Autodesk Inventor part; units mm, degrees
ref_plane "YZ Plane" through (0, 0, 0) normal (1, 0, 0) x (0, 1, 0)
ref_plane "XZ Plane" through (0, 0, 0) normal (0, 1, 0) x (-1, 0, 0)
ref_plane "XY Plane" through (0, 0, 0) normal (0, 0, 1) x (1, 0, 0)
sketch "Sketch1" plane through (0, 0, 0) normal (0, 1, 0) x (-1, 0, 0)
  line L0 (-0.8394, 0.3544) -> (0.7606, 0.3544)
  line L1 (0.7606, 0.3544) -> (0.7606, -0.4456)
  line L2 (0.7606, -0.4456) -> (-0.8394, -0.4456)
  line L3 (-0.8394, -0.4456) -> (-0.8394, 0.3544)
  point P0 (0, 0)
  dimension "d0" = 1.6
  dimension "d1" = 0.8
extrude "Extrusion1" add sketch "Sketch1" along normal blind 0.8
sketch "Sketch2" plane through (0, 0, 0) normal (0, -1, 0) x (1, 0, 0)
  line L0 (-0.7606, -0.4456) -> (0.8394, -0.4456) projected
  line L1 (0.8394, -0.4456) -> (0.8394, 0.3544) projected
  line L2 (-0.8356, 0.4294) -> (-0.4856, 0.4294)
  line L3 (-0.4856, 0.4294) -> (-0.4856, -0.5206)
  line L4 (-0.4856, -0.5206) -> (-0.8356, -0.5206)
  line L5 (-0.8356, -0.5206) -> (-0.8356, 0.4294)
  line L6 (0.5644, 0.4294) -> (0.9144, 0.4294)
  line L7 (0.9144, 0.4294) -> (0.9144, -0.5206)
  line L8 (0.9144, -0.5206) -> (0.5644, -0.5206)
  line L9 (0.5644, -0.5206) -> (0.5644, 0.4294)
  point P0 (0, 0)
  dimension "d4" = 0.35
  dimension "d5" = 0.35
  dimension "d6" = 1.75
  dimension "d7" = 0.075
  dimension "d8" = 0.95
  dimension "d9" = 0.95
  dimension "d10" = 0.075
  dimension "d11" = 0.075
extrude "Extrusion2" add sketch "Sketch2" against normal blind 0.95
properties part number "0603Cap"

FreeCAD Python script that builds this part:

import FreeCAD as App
import Part
import Sketcher
Q = App.Units.Quantity


def add_polygon(sketch, points):
    """Adds a closed chain of lines whose ends are joined by coincident constraints."""
    first, n = sketch.GeometryCount, len(points)
    for a, b in zip(points, points[1:] + points[:1]):
        sketch.addGeometry(Part.LineSegment(App.Vector(*a, 0), App.Vector(*b, 0)), False)
    for i in range(n):
        sketch.addConstraint(Sketcher.Constraint("Coincident", first + i, 2, first + (i + 1) % n, 1))

doc = App.newDocument("Part")
body = doc.addObject("PartDesign::Body", "Body")

sketch1 = body.newObject("Sketcher::SketchObject", "Sketch")
sketch1.AttachmentSupport = (doc.getObject("XZ_Plane"), [""])
sketch1.MapMode = "FlatFace"
add_polygon(sketch1, [(-0.8, 0.4), (0.8, 0.4), (0.8, -0.4), (-0.8, -0.4)])
sketch1.addConstraint(Sketcher.Constraint("Horizontal", 0))
sketch1.addConstraint(Sketcher.Constraint("Vertical", 1))
sketch1.addConstraint(Sketcher.Constraint("Horizontal", 2))
sketch1.addConstraint(Sketcher.Constraint("Vertical", 3))
sketch1.addConstraint(Sketcher.Constraint("DistanceX", 0, 1, 0, 2, Q("0.063 in")))
sketch1.addConstraint(Sketcher.Constraint("DistanceY", 1, 2, 1, 1, Q("0.0315 in")))
sketch1.addConstraint(Sketcher.Constraint("DistanceX", -1, 1, 0, 2, 0.8394))
sketch1.addConstraint(Sketcher.Constraint("DistanceY", -1, 1, 0, 2, 0.3544))
pad1 = body.newObject("PartDesign::Pad", "Pad")
pad1.Profile = sketch1
pad1.Length = Q("0.0314961 in")
pad1.Reversed = True

sketch2 = body.newObject("Sketcher::SketchObject", "Sketch001")
sketch2.AttachmentSupport = (doc.getObject("XZ_Plane"), [""])
sketch2.MapMode = "FlatFace"
add_polygon(sketch2, [(0.56, 0.43), (0.56, -0.52), (0.91, -0.52), (0.91, 0.43)])
add_polygon(sketch2, [(-0.49, -0.52), (-0.49, 0.43), (-0.84, 0.43), (-0.84, -0.52)])
sketch2.addConstraint(Sketcher.Constraint("Vertical", 0))
sketch2.addConstraint(Sketcher.Constraint("Horizontal", 1))
sketch2.addConstraint(Sketcher.Constraint("Vertical", 2))
sketch2.addConstraint(Sketcher.Constraint("Horizontal", 3))
sketch2.addConstraint(Sketcher.Constraint("Vertical", 4))
sketch2.addConstraint(Sketcher.Constraint("Horizontal", 5))
sketch2.addConstraint(Sketcher.Constraint("Vertical", 6))
sketch2.addConstraint(Sketcher.Constraint("Horizontal", 7))
sketch2.addConstraint(Sketcher.Constraint("Horizontal", 3, 2, 4, 2))
sketch2.addConstraint(Sketcher.Constraint("Horizontal", 1, 2, 6, 2))
sketch2.addConstraint(Sketcher.Constraint("Equal", 3, 5))
sketch2.addConstraint(Sketcher.Constraint("DistanceY", 0, 2, 0, 1, Q("0.0374 in")))
sketch2.addConstraint(Sketcher.Constraint("DistanceX", 1, 1, 1, 2, 0.35))
sketch2.addConstraint(Sketcher.Constraint("DistanceX", 5, 2, 2, 2, Q("0.0689 in")))
sketch2.addConstraint(Sketcher.Constraint("DistanceX", -1, 1, 1, 2, Q("0.036 in")))
sketch2.addConstraint(Sketcher.Constraint("DistanceY", 0, 2, -1, 1, Q("0.0205 in")))
pad2 = body.newObject("PartDesign::Pad", "Pad001")
pad2.Profile = sketch2
pad2.Length = Q("0.0374016 in")
pad2.Reversed = True

doc.recompute()
